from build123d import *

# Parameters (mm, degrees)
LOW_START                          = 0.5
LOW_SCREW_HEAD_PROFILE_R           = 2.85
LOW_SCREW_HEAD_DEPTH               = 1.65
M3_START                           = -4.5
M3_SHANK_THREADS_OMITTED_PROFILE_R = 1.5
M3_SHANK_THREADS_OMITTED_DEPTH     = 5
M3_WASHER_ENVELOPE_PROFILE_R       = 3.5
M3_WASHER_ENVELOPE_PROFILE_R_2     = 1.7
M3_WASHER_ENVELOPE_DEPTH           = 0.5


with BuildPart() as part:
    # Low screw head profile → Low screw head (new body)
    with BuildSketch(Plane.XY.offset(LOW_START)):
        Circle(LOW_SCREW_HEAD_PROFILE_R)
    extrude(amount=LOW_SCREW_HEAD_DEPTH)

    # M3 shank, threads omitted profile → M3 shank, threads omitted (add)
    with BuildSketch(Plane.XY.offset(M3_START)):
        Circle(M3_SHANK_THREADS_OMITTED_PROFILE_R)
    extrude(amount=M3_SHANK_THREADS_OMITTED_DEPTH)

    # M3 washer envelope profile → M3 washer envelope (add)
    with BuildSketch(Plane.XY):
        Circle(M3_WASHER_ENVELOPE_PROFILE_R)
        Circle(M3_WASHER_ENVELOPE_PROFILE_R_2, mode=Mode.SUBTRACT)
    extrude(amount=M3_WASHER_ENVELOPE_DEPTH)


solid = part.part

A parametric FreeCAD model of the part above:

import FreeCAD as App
import Part
import Sketcher
from FreeCAD import Vector
Q = App.Units.Quantity

doc = App.newDocument("Part")
body = doc.addObject("PartDesign::Body", "Body")

sketch1 = body.newObject("Sketcher::SketchObject", "Sketch")
sketch1.AttachmentSupport = (doc.getObject("XY_Plane"), [""])
sketch1.MapMode = "FlatFace"
sketch1.AttachmentOffset = App.Placement(Vector(0, 0, 0.5), App.Rotation())
sketch1.addGeometry(Part.Circle(Vector(0, 0, 0), Vector(0, 0, 1), 2.9), False)
sketch1.addConstraint(Sketcher.Constraint("Coincident", 0, 3, -1, 1))
sketch1.addConstraint(Sketcher.Constraint("Diameter", 0, Q("5.7 mm")))
pad1 = body.newObject("PartDesign::Pad", "Pad")
pad1.Profile = sketch1
pad1.Length = 1.65

sketch2 = body.newObject("Sketcher::SketchObject", "Sketch001")
sketch2.AttachmentSupport = (doc.getObject("XY_Plane"), [""])
sketch2.MapMode = "FlatFace"
sketch2.AttachmentOffset = App.Placement(Vector(0, 0, -4.5), App.Rotation())
sketch2.addGeometry(Part.Circle(Vector(0, 0, 0), Vector(0, 0, 1), 1.5), False)
sketch2.addConstraint(Sketcher.Constraint("Coincident", 0, 3, -1, 1))
sketch2.addConstraint(Sketcher.Constraint("Diameter", 0, Q("3 mm")))
pad2 = body.newObject("PartDesign::Pad", "Pad001")
pad2.Profile = sketch2
pad2.Length = 5

sketch3 = body.newObject("Sketcher::SketchObject", "Sketch002")
sketch3.AttachmentSupport = (doc.getObject("XY_Plane"), [""])
sketch3.MapMode = "FlatFace"
sketch3.addGeometry(Part.Circle(Vector(0, 0, 0), Vector(0, 0, 1), 3.5), False)
sketch3.addGeometry(Part.Circle(Vector(0, 0, 0), Vector(0, 0, 1), 1.7), False)
sketch3.addConstraint(Sketcher.Constraint("Coincident", 0, 3, -1, 1))
sketch3.addConstraint(Sketcher.Constraint("Coincident", 1, 3, -1, 1))
sketch3.addConstraint(Sketcher.Constraint("Diameter", 0, Q("7 mm")))
sketch3.addConstraint(Sketcher.Constraint("Diameter", 1, Q("3.4 mm")))
pad3 = body.newObject("PartDesign::Pad", "Pad002")
pad3.Profile = sketch3
pad3.Length = 0.5

doc.recompute()
